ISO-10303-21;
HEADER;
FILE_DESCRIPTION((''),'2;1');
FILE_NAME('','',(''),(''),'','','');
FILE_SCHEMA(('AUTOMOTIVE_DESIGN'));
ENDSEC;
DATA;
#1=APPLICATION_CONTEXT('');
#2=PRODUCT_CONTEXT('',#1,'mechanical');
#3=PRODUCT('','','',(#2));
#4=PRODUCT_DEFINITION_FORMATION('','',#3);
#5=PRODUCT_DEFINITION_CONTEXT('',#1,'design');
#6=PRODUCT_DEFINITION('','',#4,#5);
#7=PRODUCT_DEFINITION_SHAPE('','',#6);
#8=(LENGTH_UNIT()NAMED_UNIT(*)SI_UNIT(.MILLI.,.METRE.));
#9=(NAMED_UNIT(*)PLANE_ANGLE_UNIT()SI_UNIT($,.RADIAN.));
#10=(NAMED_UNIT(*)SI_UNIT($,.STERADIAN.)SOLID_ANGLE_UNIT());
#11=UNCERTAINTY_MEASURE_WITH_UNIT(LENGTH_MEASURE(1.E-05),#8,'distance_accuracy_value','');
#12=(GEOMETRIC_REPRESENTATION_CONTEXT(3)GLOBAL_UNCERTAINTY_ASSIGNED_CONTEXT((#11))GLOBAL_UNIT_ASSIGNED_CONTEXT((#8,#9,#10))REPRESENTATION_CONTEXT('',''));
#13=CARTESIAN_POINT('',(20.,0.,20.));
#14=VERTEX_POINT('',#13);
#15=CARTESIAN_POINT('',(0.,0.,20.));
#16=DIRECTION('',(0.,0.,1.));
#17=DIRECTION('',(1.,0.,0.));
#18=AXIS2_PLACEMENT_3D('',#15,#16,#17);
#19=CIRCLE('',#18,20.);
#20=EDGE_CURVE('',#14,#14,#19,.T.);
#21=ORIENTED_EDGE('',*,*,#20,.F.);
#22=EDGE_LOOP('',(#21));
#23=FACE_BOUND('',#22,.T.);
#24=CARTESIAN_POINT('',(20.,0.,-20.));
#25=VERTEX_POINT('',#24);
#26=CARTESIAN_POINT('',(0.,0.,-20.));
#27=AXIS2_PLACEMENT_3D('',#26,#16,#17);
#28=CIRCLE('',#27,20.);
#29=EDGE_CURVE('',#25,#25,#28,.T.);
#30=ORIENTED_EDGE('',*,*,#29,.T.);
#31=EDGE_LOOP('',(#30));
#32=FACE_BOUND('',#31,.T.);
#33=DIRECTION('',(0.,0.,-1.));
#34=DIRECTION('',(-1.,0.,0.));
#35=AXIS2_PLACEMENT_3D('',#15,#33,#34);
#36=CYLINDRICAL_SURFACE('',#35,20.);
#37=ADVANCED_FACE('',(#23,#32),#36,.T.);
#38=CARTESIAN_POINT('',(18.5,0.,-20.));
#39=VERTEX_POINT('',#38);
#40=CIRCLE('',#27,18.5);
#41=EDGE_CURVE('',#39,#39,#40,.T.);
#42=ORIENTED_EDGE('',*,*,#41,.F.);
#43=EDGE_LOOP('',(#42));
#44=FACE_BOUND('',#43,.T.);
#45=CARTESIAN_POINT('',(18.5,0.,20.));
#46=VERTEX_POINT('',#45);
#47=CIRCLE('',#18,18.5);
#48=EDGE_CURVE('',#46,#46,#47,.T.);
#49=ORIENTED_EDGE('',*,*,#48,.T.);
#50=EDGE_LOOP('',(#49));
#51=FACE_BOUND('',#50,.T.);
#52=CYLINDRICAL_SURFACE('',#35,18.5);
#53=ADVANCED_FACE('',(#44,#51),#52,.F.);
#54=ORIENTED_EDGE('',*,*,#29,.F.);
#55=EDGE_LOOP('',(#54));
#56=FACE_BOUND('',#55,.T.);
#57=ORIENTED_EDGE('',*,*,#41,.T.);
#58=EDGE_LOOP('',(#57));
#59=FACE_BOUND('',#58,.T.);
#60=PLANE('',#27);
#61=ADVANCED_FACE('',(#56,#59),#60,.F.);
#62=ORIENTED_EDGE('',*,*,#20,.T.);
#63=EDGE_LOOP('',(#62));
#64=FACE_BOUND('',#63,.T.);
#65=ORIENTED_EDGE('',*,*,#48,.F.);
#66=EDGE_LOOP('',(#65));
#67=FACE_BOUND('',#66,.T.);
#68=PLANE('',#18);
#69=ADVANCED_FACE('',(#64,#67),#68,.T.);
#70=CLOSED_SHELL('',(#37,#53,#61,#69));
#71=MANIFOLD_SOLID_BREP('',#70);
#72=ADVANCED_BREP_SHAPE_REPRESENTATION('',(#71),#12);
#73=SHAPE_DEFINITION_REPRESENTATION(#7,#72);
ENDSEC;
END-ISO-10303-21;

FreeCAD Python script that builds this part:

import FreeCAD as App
import Part
import Sketcher
from FreeCAD import Vector

doc = App.newDocument("Part")
body = doc.addObject("PartDesign::Body", "Body")

# Sketch on XY plane
sketch1 = body.newObject("Sketcher::SketchObject", "Sketch")
sketch1.AttachmentSupport = (doc.getObject("XY_Plane"), [""])
sketch1.MapMode = "FlatFace"
sketch1.addGeometry([
    Part.Circle(Vector(0, 0, 0), Vector(0, 0, 1), 20),
    Part.Circle(Vector(0, 0, 0), Vector(0, 0, 1), 18.5),
], False)
sketch1.addConstraint([
    Sketcher.Constraint("Coincident", 0, 3, -1, 1),
    Sketcher.Constraint("Coincident", 1, 3, -1, 1),
    Sketcher.Constraint("Diameter", 0, 40.0),
    Sketcher.Constraint("Diameter", 1, 37.0),
])
pad1 = body.newObject("PartDesign::Pad", "Pad")
pad1.Profile = sketch1
pad1.Length = 40
pad1.Midplane = True

doc.recompute()
